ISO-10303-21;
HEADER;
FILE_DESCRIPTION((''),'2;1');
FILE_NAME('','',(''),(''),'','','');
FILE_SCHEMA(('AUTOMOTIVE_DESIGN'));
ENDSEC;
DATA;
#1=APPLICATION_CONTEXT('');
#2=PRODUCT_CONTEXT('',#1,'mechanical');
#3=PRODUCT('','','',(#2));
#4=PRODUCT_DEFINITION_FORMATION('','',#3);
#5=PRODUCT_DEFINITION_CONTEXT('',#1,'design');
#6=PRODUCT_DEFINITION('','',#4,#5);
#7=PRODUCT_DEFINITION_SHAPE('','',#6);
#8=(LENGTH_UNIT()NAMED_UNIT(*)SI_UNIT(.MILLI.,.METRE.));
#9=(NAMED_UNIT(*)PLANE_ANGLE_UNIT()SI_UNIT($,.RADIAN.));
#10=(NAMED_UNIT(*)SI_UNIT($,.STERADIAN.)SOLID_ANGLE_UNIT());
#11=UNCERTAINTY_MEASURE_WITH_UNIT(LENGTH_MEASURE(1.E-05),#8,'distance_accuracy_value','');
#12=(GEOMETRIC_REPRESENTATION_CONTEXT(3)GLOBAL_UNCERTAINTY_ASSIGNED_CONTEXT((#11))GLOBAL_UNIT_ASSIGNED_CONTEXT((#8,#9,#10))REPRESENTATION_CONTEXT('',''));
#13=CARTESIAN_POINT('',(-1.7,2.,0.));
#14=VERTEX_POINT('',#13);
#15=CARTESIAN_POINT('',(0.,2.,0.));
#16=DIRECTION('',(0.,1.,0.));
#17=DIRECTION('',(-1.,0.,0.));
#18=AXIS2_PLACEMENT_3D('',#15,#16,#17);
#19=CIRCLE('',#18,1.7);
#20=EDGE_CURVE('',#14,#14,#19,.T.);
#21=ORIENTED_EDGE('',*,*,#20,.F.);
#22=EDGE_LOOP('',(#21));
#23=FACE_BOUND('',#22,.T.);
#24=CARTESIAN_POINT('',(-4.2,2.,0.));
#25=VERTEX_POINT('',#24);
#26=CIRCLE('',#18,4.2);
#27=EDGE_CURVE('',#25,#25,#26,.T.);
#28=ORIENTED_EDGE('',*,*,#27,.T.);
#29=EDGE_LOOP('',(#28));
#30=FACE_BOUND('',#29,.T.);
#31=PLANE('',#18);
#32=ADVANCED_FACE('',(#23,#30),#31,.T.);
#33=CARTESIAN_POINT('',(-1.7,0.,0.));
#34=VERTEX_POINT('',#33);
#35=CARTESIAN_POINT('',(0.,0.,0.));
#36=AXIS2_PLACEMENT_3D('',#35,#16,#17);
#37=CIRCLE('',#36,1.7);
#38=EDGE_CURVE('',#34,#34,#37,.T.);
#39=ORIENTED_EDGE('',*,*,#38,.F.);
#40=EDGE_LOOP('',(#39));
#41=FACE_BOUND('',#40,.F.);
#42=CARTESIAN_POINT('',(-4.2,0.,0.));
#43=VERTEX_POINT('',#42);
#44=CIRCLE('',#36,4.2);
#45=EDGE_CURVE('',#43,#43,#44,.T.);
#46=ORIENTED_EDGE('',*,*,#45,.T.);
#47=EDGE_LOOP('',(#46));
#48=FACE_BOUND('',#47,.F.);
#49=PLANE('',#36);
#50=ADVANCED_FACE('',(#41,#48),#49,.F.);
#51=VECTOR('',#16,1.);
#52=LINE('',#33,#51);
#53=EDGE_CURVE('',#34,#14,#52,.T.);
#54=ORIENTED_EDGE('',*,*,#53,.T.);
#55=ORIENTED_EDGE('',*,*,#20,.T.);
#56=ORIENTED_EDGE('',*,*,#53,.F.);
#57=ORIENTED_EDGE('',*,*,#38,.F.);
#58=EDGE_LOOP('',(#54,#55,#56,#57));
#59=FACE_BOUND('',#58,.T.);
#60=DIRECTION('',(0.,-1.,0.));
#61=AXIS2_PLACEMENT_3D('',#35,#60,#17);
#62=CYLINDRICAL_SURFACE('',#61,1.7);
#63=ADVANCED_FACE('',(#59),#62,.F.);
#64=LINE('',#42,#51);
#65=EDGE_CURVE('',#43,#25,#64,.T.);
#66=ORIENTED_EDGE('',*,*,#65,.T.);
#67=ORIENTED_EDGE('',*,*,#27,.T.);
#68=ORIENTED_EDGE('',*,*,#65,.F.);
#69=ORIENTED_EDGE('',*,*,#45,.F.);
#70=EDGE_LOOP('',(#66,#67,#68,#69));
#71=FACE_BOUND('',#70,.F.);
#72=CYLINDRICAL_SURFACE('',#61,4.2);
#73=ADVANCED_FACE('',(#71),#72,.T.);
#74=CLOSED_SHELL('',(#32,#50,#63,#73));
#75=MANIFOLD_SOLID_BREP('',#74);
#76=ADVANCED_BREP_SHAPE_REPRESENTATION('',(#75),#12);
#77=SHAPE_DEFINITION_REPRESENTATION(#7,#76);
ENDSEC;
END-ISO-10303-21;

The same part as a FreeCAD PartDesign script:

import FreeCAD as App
import Part
import Sketcher

V = App.Vector
Q = App.Units.Quantity

doc = App.newDocument("Part")
params = doc.addObject("Spreadsheet::Sheet", "Params")
for row, (alias, value) in enumerate([
    ("sketch1_diameter", "3.4 mm"),
    ("sketch1_diameter2", "8.4 mm"),
    ("pad1_length", "2 mm"),
], start=1):
    params.set(f"A{row}", alias)
    params.set(f"B{row}", "=" + value)
    params.setAlias(f"B{row}", alias)

body = doc.addObject("PartDesign::Body", "Body")

sketch1 = doc.addObject("Sketcher::SketchObject", "Sketch")
body.addObject(sketch1)
sketch1.AttachmentSupport = (doc.XZ_Plane, [""])
sketch1.MapMode = "FlatFace"
sketch1.addGeometry([
    Part.Circle(V(0, 0, 0), V(0, 0, 1), 4.2),
    Part.Circle(V(0, 0, 0), V(0, 0, 1), 1.7),
], False)
sketch1.addConstraint([
    Sketcher.Constraint("Coincident", 0, 3, -1, 1),
    Sketcher.Constraint("Coincident", 1, 3, -1, 1),
    Sketcher.Constraint("Diameter", 1, Q("3.4 mm")),
    Sketcher.Constraint("Diameter", 0, Q("8.4 mm")),
])
sketch1.setExpression("Constraints[2]", "Params.sketch1_diameter")
sketch1.setExpression("Constraints[3]", "Params.sketch1_diameter2")
pad1 = doc.addObject("PartDesign::Pad", "Pad")
body.addObject(pad1)
pad1.Profile = sketch1
pad1.setExpression("Length", "Params.pad1_length")
pad1.Reversed = True

doc.recompute()
